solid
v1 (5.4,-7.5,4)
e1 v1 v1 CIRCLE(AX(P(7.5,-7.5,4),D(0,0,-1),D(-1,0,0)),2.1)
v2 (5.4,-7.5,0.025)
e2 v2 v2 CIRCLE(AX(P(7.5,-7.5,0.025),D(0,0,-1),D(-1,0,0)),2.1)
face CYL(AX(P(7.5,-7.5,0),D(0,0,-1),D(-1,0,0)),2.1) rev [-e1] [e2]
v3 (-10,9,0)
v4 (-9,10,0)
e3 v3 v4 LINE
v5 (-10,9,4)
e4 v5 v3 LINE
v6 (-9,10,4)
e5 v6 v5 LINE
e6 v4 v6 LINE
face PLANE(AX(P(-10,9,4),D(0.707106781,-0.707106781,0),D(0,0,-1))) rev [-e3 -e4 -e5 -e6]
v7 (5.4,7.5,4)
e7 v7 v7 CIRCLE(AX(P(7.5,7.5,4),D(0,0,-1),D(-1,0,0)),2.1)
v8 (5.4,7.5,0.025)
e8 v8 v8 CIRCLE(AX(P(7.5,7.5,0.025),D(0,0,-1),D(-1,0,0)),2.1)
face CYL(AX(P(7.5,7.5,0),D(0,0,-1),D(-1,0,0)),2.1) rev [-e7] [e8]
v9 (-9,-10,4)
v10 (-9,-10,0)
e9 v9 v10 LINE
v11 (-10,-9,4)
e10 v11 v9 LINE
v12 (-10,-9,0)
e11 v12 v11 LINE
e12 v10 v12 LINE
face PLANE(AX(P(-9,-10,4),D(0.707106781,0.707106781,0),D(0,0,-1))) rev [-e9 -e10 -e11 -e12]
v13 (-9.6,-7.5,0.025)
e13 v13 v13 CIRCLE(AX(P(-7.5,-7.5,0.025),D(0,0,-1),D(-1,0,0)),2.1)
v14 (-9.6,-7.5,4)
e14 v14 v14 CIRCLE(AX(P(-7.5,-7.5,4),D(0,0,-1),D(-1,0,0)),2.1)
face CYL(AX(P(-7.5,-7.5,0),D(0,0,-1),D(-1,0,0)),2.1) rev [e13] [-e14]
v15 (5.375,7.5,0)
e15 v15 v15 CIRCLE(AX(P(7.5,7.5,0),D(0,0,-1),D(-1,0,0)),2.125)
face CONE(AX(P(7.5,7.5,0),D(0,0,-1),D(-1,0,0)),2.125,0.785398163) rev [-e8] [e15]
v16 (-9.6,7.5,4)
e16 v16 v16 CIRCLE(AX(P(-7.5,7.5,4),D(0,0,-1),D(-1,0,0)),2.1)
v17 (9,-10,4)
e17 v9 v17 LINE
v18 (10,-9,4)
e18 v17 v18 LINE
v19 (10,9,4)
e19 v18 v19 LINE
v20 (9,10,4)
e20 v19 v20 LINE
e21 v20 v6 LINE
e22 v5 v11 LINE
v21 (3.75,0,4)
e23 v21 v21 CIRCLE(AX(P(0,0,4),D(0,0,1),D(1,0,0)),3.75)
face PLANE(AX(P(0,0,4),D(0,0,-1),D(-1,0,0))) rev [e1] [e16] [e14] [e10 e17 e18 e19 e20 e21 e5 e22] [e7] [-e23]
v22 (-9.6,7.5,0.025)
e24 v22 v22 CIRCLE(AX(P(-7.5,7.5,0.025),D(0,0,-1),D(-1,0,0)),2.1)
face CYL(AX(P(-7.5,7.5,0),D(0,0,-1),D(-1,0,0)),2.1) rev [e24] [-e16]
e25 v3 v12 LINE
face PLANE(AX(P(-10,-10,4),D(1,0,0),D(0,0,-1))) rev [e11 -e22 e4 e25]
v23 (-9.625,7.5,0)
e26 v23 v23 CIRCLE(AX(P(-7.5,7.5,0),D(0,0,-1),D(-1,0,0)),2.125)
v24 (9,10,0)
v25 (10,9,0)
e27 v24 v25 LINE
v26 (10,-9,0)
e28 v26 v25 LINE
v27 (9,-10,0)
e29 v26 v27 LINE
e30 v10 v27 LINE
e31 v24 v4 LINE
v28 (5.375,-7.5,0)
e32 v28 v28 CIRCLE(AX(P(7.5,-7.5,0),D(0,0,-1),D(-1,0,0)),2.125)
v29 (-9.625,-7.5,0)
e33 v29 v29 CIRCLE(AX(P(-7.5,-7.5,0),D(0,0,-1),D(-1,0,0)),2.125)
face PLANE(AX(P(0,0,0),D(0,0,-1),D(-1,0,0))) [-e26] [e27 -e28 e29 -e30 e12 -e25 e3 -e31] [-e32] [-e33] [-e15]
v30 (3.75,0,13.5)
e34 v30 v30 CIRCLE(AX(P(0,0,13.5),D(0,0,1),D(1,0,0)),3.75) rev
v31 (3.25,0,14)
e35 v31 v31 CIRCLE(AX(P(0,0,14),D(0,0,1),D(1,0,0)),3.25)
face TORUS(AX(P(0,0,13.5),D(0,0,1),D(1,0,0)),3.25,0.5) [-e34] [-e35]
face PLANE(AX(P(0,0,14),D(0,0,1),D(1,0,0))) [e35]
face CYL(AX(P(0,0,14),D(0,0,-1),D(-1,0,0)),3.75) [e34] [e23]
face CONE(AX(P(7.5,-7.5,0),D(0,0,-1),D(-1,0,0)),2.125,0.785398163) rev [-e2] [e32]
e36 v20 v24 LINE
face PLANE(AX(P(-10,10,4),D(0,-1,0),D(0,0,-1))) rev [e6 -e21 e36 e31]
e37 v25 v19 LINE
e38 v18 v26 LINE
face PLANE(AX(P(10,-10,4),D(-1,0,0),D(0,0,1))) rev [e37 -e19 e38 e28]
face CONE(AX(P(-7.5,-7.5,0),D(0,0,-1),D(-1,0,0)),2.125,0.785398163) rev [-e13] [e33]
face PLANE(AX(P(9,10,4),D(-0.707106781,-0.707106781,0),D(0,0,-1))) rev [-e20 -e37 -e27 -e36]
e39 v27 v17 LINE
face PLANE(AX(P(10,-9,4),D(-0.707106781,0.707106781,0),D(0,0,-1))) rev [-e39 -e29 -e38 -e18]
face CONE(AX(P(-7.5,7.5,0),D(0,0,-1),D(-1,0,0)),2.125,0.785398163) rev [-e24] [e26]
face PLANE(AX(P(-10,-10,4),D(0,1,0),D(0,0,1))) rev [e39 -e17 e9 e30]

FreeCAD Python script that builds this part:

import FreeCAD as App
import Part
import Sketcher
from FreeCAD import Vector
Q = App.Units.Quantity


def edges_at(feature, points):
    """Names of the edges that pass closest to the given points."""
    edges = feature.Shape.Edges
    near = lambda p: min(range(len(edges)), key=lambda i: edges[i].distToShape(Part.Vertex(*p))[0])
    return sorted({f"Edge{near(p) + 1}" for p in points})


def add_polygon(sketch, points):
    """Adds a closed chain of lines whose ends are joined by coincident constraints."""
    first, n = sketch.GeometryCount, len(points)
    for a, b in zip(points, points[1:] + points[:1]):
        sketch.addGeometry(Part.LineSegment(App.Vector(*a, 0), App.Vector(*b, 0)), False)
    for i in range(n):
        sketch.addConstraint(Sketcher.Constraint("Coincident", first + i, 2, first + (i + 1) % n, 1))

doc = App.newDocument("Part")
body = doc.addObject("PartDesign::Body", "Body")

# Sketch on XY plane
sketch1 = body.newObject("Sketcher::SketchObject", "Sketch")
sketch1.AttachmentSupport = (doc.getObject("XY_Plane"), [""])
sketch1.MapMode = "FlatFace"
add_polygon(sketch1, [(-10, 10), (-10, -10), (10, -10), (10, 10)])  # lines 0-3
sketch1.addConstraint([
    Sketcher.Constraint("Vertical", 0),
    Sketcher.Constraint("Horizontal", 1),
    Sketcher.Constraint("Vertical", 2),
    Sketcher.Constraint("Horizontal", 3),
    Sketcher.Constraint("Symmetric", 0, 2, 2, 2, -1, 1),
    Sketcher.Constraint("Equal", 3, 0),
    Sketcher.Constraint("DistanceX", 1, 1, 1, 2, Q("20 mm")),
])
pad1 = body.newObject("PartDesign::Pad", "Pad")
pad1.Profile = sketch1
pad1.Length = 4

# Sketch on XY plane
sketch2 = body.newObject("Sketcher::SketchObject", "Sketch001")
sketch2.AttachmentSupport = (doc.getObject("XY_Plane"), [""])
sketch2.MapMode = "FlatFace"
sketch2.AttachmentOffset = App.Placement(Vector(0, 0, 4), App.Rotation())
sketch2.addGeometry(Part.Circle(Vector(0, 0, 0), Vector(0, 0, 1), 3.8), False)
sketch2.addConstraint([
    Sketcher.Constraint("Coincident", 0, 3, -1, 1),
    Sketcher.Constraint("Diameter", 0, Q("7.5 mm")),
])
pad2 = body.newObject("PartDesign::Pad", "Pad001")
pad2.Profile = sketch2
pad2.Length = 10

# Sketch on XY plane
sketch3 = body.newObject("Sketcher::SketchObject", "Sketch002")
sketch3.AttachmentSupport = (doc.getObject("XY_Plane"), [""])
sketch3.MapMode = "FlatFace"
sketch3.addGeometry([
    Part.Circle(Vector(7.5, 7.5, 0), Vector(0, 0, 1), 2.1),
    Part.Circle(Vector(-7.5, 7.5, 0), Vector(0, 0, 1), 2.1),
    Part.Circle(Vector(-7.5, -7.5, 0), Vector(0, 0, 1), 2.1),
    Part.Circle(Vector(7.5, -7.5, 0), Vector(0, 0, 1), 2.1),
], False)
sketch3.addConstraint([
    Sketcher.Constraint("Equal", 0, 1),
    Sketcher.Constraint("Equal", 1, 2),
    Sketcher.Constraint("Equal", 2, 3),
    Sketcher.Constraint("Symmetric", 0, 3, 2, 3, -1, 1),
    Sketcher.Constraint("Symmetric", 1, 3, 3, 3, -1, 1),
    Sketcher.Constraint("Symmetric", 0, 3, 1, 3, -2),
    Sketcher.Constraint("Diameter", 0, Q("4.2 mm")),
    Sketcher.Constraint("DistanceX", 1, 3, 0, 3, Q("15 mm")),
    Sketcher.Constraint("DistanceY", 2, 3, 1, 3, Q("15 mm")),
])
doc.recompute()
hole = body.newObject("PartDesign::Hole", "Hole")
hole.Profile = sketch3
hole.ThreadType = "None"
hole.Diameter = 4.2
hole.DepthType = "ThroughAll"
hole.HoleCutType = "Countersink"
hole.HoleCutDiameter = 4.25
hole.HoleCutCountersinkAngle = 90
hole.Reversed = True
doc.recompute()

fillet = body.newObject("PartDesign::Fillet", "Fillet")
fillet.Base = (hole, edges_at(hole, [(-3.75, 0, 14)]))
fillet.Radius = 0.5
doc.recompute()

chamfer = body.newObject("PartDesign::Chamfer", "Chamfer")
chamfer.Base = (fillet, edges_at(fillet, [
    (10, -10, 2),
    (-10, -10, 2),
    (-10, 10, 2),
    (10, 10, 2),
]))
chamfer.Size = 1

doc.recompute()
